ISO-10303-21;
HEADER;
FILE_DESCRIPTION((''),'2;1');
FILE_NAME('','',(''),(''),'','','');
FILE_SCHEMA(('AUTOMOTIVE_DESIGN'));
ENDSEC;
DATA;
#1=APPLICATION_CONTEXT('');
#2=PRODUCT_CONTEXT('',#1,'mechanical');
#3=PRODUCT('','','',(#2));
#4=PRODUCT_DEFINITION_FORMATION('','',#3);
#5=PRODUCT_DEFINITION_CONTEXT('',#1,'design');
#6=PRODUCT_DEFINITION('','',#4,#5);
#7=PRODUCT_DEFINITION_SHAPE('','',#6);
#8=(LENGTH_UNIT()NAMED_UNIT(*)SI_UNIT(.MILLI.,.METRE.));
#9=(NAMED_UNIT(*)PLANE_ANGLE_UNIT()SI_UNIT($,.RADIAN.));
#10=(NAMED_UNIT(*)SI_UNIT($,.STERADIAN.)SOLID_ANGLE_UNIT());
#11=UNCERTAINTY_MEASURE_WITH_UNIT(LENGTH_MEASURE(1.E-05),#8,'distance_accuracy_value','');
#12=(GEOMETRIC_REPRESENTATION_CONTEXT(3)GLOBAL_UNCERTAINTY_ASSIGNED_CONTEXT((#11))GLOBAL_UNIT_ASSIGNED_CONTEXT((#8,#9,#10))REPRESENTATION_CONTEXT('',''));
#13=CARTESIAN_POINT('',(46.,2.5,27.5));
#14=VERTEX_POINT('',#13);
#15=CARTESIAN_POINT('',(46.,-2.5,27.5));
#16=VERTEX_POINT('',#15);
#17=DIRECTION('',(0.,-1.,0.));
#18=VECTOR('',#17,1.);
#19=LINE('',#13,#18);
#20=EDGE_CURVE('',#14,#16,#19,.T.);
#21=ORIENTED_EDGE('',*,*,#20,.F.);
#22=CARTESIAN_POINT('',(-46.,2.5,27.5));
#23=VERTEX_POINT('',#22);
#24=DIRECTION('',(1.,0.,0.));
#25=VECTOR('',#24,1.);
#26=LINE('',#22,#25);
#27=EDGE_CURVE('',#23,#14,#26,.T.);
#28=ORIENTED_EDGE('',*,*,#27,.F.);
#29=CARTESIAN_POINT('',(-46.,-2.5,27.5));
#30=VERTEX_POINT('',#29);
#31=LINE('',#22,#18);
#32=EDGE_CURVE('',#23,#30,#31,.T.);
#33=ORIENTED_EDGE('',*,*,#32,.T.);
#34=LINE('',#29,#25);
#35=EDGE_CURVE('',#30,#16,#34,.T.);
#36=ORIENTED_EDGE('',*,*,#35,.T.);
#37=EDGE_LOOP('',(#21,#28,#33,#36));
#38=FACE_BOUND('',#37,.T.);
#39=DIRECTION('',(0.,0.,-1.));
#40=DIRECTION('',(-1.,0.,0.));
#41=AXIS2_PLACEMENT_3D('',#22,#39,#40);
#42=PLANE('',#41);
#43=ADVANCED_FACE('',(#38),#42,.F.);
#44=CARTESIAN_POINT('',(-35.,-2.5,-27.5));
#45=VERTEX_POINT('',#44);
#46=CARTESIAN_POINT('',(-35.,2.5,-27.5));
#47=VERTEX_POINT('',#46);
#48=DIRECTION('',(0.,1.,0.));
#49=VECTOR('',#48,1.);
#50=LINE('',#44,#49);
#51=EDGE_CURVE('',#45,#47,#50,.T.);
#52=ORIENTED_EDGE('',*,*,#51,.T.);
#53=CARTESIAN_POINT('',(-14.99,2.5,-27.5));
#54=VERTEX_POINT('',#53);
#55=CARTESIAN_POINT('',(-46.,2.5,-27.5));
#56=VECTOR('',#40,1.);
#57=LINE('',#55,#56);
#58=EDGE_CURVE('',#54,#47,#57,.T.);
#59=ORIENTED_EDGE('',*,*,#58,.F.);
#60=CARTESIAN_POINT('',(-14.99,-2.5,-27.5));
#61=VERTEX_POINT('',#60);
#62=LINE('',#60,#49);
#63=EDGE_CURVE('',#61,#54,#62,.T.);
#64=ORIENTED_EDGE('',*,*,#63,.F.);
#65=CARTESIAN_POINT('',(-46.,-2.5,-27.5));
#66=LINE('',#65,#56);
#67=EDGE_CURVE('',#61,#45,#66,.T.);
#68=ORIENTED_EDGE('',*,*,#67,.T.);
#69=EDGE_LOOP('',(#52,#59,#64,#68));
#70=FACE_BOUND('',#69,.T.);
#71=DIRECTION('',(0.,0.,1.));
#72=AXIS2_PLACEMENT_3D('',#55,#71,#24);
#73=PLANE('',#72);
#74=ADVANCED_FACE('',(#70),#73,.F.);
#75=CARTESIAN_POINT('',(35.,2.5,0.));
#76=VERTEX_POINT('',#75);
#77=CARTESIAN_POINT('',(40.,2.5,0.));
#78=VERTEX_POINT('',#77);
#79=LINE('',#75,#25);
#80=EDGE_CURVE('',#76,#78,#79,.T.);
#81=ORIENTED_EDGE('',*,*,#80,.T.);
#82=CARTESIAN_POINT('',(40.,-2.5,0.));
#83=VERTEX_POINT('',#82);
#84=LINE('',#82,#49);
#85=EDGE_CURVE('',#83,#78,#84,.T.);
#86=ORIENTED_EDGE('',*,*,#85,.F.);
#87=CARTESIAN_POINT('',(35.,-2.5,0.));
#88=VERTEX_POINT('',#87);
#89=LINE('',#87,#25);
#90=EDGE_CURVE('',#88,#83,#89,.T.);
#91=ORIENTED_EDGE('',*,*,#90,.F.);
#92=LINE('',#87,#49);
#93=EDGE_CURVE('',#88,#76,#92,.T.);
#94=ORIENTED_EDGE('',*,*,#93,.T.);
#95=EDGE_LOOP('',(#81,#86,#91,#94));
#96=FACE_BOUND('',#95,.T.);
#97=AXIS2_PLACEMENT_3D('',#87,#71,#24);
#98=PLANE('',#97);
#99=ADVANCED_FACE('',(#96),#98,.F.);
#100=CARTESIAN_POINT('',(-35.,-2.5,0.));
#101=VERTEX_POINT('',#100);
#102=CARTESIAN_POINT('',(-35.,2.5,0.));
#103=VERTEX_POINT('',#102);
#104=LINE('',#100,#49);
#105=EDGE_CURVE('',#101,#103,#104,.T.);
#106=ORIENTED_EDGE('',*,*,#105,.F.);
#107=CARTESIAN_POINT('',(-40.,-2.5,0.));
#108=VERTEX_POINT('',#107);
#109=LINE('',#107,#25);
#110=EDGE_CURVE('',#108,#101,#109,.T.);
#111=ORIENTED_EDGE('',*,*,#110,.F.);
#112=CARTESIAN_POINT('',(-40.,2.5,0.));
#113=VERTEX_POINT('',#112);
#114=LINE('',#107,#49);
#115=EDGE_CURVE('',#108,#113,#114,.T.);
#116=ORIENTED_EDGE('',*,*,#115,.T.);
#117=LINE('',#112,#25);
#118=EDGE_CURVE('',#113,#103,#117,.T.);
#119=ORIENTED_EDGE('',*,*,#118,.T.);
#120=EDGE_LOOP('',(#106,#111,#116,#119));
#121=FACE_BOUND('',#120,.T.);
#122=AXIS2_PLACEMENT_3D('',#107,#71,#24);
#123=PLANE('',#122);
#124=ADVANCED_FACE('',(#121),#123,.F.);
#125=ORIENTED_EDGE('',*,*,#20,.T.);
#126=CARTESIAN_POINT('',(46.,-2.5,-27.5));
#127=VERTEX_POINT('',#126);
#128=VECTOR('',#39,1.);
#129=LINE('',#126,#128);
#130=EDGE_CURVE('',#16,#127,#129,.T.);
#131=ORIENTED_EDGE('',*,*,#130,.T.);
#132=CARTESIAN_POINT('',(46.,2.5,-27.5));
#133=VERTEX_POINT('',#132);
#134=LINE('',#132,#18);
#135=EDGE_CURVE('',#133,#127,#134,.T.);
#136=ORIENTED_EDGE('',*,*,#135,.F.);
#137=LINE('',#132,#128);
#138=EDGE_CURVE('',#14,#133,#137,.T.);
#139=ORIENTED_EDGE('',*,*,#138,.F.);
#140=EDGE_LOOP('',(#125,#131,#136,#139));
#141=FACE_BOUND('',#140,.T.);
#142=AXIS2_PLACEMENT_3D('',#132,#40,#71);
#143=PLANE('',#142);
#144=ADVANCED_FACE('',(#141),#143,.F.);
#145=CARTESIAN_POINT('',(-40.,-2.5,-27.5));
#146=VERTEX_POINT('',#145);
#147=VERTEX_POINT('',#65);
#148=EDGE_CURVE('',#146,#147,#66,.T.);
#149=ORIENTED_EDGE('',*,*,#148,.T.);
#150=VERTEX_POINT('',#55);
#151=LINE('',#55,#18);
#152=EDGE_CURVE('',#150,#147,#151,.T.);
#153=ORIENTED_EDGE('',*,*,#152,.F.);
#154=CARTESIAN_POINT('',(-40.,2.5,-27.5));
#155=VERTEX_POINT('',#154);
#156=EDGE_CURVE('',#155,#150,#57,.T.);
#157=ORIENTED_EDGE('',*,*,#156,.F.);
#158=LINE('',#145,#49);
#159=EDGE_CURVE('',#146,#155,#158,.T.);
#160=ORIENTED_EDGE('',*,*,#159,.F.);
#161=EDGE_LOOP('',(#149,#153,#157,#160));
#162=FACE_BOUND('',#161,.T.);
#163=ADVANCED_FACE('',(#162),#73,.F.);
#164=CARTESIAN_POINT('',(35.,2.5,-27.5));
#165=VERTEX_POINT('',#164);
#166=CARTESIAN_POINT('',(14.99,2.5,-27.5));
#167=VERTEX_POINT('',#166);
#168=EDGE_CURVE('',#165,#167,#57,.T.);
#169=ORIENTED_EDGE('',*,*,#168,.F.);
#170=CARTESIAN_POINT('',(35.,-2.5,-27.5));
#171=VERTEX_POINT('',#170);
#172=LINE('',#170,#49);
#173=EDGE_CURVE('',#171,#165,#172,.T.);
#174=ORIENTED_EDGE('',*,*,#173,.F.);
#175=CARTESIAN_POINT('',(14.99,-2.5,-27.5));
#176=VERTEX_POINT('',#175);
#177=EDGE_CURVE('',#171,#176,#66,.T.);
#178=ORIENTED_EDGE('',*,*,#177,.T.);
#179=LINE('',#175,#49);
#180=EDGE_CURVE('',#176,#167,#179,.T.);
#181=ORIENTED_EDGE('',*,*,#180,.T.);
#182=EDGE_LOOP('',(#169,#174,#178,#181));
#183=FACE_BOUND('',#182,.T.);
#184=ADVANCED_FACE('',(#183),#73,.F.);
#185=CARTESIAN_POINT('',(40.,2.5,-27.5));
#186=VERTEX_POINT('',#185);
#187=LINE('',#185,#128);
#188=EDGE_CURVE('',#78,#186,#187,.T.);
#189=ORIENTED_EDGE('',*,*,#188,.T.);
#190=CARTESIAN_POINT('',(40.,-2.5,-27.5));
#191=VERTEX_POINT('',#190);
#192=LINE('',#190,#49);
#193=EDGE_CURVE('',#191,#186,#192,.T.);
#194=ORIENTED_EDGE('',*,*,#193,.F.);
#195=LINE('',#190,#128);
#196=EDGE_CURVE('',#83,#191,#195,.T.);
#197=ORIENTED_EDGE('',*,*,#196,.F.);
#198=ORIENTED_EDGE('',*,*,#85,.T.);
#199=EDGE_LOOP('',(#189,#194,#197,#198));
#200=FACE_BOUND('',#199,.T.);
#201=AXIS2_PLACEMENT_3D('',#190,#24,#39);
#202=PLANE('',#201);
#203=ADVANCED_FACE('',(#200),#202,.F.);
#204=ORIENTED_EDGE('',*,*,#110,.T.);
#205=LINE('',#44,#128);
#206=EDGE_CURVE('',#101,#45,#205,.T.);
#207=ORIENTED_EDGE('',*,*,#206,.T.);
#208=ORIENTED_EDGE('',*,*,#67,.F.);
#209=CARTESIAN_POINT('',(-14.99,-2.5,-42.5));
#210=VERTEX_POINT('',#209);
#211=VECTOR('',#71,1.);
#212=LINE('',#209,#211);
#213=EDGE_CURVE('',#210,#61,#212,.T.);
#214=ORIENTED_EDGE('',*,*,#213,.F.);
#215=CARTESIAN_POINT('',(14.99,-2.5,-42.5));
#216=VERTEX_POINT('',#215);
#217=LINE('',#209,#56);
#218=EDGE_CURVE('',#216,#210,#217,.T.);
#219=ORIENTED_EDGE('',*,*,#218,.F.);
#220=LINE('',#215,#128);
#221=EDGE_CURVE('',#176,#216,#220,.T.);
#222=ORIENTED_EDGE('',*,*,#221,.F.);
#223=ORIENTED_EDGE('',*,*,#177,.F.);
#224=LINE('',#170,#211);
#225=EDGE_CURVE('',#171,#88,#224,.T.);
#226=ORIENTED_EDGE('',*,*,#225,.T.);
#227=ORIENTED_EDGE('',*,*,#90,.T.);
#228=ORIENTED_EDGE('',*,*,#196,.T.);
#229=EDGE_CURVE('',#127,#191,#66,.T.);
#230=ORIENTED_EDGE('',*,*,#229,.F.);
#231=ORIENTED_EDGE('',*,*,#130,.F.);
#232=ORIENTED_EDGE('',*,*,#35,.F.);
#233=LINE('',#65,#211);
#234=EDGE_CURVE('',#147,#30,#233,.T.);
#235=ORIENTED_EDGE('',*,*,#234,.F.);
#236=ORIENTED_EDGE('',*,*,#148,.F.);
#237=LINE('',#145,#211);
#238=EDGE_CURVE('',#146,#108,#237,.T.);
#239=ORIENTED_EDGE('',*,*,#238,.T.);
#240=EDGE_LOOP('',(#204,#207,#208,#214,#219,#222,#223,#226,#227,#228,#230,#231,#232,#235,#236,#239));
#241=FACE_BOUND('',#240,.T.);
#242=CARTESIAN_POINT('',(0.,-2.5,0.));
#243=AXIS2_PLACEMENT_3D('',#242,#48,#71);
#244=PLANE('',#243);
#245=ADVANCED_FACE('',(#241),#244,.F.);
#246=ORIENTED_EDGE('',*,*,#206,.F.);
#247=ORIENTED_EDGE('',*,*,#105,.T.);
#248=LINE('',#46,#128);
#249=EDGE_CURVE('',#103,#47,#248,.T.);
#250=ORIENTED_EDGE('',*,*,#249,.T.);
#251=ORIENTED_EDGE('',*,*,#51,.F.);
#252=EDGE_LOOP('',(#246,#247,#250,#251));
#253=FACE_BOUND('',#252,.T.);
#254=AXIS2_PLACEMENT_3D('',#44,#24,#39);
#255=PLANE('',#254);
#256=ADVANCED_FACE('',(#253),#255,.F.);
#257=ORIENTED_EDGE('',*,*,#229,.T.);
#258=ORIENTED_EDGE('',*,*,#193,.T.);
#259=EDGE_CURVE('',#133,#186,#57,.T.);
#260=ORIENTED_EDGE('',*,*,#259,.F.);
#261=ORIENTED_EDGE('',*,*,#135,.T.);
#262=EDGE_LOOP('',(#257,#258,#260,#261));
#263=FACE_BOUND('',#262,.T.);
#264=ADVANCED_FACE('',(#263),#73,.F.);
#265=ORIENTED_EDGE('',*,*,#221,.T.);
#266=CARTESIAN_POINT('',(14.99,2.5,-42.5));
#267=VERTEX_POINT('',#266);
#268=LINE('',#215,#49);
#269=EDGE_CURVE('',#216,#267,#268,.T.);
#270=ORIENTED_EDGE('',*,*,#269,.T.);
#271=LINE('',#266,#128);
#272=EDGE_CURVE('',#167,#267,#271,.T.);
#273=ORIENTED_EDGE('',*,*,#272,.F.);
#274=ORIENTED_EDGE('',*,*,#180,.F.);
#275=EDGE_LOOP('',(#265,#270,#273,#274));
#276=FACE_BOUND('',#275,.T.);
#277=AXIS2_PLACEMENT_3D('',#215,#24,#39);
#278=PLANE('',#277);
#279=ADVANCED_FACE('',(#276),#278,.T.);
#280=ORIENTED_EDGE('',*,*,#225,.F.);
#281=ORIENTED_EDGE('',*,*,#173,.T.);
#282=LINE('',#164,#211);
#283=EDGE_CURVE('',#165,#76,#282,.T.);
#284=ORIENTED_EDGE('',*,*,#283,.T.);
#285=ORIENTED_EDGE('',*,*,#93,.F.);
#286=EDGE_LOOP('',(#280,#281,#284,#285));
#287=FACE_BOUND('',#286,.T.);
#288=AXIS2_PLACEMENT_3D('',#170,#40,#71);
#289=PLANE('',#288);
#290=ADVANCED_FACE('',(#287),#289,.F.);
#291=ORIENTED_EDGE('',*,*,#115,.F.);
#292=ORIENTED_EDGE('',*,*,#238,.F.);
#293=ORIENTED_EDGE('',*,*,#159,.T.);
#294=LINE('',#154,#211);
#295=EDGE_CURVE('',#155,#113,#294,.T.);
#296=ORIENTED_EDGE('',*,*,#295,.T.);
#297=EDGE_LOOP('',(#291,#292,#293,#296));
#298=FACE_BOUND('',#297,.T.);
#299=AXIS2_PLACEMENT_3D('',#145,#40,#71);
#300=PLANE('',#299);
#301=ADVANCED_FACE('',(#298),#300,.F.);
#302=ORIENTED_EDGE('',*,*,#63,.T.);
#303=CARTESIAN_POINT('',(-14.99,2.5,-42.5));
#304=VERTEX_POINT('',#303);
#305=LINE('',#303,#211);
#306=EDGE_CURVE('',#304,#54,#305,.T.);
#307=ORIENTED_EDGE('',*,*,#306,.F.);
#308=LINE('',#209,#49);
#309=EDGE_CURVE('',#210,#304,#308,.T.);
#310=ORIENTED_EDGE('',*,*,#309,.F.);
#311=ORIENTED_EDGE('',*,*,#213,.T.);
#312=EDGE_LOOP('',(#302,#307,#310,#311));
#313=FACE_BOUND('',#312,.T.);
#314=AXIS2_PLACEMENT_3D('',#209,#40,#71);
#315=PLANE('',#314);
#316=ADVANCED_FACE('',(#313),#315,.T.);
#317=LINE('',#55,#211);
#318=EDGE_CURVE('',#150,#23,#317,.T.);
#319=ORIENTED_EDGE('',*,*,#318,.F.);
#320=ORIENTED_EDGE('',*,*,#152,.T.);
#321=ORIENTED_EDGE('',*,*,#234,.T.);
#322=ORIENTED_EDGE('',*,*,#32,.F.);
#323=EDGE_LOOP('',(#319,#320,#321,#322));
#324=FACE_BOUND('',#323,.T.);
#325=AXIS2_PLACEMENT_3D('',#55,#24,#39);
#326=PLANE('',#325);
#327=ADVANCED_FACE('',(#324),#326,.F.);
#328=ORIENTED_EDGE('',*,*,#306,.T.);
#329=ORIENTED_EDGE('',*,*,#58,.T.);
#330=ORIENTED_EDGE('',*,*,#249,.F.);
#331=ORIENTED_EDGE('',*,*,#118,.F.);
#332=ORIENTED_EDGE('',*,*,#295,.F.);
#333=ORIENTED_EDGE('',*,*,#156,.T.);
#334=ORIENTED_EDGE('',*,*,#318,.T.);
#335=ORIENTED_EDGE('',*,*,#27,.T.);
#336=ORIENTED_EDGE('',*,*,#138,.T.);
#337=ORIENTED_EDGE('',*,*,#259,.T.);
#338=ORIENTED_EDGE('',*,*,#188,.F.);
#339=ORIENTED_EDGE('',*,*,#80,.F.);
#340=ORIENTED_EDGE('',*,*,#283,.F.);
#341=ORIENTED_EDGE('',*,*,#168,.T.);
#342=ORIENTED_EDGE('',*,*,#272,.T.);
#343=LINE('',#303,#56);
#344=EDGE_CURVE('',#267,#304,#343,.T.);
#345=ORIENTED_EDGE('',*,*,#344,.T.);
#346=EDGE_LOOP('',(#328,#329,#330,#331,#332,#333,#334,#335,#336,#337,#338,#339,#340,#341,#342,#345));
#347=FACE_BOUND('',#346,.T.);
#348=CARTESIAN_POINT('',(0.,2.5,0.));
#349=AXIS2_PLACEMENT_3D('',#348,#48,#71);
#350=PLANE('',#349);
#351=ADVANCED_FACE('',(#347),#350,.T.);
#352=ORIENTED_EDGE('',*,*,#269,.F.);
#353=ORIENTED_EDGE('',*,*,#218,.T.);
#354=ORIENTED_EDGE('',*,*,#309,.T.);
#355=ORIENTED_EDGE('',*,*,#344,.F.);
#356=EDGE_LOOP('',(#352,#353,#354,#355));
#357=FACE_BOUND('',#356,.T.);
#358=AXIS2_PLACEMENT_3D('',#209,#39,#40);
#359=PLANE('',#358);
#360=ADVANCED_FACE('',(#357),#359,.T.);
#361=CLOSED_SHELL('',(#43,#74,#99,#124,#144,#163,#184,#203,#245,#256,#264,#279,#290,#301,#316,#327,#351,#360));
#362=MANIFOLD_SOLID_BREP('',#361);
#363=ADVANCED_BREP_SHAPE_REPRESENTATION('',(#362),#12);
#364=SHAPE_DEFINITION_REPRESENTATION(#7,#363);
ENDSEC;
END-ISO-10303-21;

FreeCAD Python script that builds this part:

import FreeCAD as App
import Part
import Sketcher
from FreeCAD import Vector


def add_polygon(sketch, points):
    """Adds a closed chain of lines whose ends are joined by coincident constraints."""
    first, n = sketch.GeometryCount, len(points)
    for a, b in zip(points, points[1:] + points[:1]):
        sketch.addGeometry(Part.LineSegment(App.Vector(*a, 0), App.Vector(*b, 0)), False)
    for i in range(n):
        sketch.addConstraint(Sketcher.Constraint("Coincident", first + i, 2, first + (i + 1) % n, 1))

doc = App.newDocument("Part")
body = doc.addObject("PartDesign::Body", "Body")

sketch1 = body.newObject("Sketcher::SketchObject", "Sketch")
sketch1.AttachmentSupport = (doc.getObject("XZ_Plane"), [""])
sketch1.MapMode = "FlatFace"
add_polygon(sketch1, [(-46, -28), (-46, 28), (46, 28), (46, -28)])
sketch1.addConstraint(Sketcher.Constraint("Vertical", 0))
sketch1.addConstraint(Sketcher.Constraint("Horizontal", 1))
sketch1.addConstraint(Sketcher.Constraint("Vertical", 2))
sketch1.addConstraint(Sketcher.Constraint("Horizontal", 3))
sketch1.addConstraint(Sketcher.Constraint("Symmetric", 0, 2, 2, 2, -1, 1))
sketch1.addConstraint(Sketcher.Constraint("DistanceX", 1, 1, 1, 2, 92.0))
sketch1.addConstraint(Sketcher.Constraint("DistanceY", 0, 1, 0, 2, 55.0))
pad1 = body.newObject("PartDesign::Pad", "Pad")
pad1.Profile = sketch1
pad1.Length = 5
pad1.Midplane = True

sketch2 = body.newObject("Sketcher::SketchObject", "Sketch001")
sketch2.AttachmentSupport = (doc.getObject("XZ_Plane"), [""])
sketch2.MapMode = "FlatFace"
sketch2.AttachmentOffset = App.Placement(Vector(0, 0, -2.5), App.Rotation())
add_polygon(sketch2, [(-40, -28), (-40, 0), (-35, 0), (-35, -28)])
add_polygon(sketch2, [(35, -28), (35, 0), (40, 0), (40, -28)])
sketch2.addConstraint(Sketcher.Constraint("Vertical", 0))
sketch2.addConstraint(Sketcher.Constraint("Horizontal", 1))
sketch2.addConstraint(Sketcher.Constraint("Vertical", 2))
sketch2.addConstraint(Sketcher.Constraint("Horizontal", 3))
sketch2.addConstraint(Sketcher.Constraint("Vertical", 4))
sketch2.addConstraint(Sketcher.Constraint("Horizontal", 5))
sketch2.addConstraint(Sketcher.Constraint("Vertical", 6))
sketch2.addConstraint(Sketcher.Constraint("Horizontal", 7))
sketch2.addConstraint(Sketcher.Constraint("Symmetric", 1, 2, 4, 2, -1, 1))
sketch2.addConstraint(Sketcher.Constraint("Symmetric", 0, 2, 5, 2, -2))
sketch2.addConstraint(Sketcher.Constraint("Horizontal", 3, 2, 6, 2))
sketch2.addConstraint(Sketcher.Constraint("DistanceX", 1, 1, 1, 2, 5.0))
sketch2.addConstraint(Sketcher.Constraint("DistanceY", 0, 1, 0, 2, 27.5))
sketch2.addConstraint(Sketcher.Constraint("DistanceX", 0, 2, -1, 1, 40.0))
pocket1 = body.newObject("PartDesign::Pocket", "Pocket")
pocket1.Profile = sketch2
pocket1.Type = "ThroughAll"
pocket1.Reversed = True

sketch3 = body.newObject("Sketcher::SketchObject", "Sketch002")
sketch3.AttachmentSupport = (doc.getObject("XZ_Plane"), [""])
sketch3.MapMode = "FlatFace"
sketch3.AttachmentOffset = App.Placement(Vector(0, 0, -2.5), App.Rotation())
add_polygon(sketch3, [(-15, -42), (-15, -28), (15, -28), (15, -42)])
sketch3.addConstraint(Sketcher.Constraint("Vertical", 0))
sketch3.addConstraint(Sketcher.Constraint("Horizontal", 1))
sketch3.addConstraint(Sketcher.Constraint("Vertical", 2))
sketch3.addConstraint(Sketcher.Constraint("Horizontal", 3))
sketch3.addConstraint(Sketcher.Constraint("DistanceY", 0, 1, 0, 2, 15.0))
sketch3.addConstraint(Sketcher.Constraint("DistanceX", 1, 1, 1, 2, 29.98))
sketch3.addConstraint(Sketcher.Constraint("DistanceY", 0, 2, -1, 1, 27.5))
sketch3.addConstraint(Sketcher.Constraint("DistanceX", 0, 2, -1, 1, 14.99))
pad2 = body.newObject("PartDesign::Pad", "Pad001")
pad2.Profile = sketch3
pad2.Length = 5

doc.recompute()
